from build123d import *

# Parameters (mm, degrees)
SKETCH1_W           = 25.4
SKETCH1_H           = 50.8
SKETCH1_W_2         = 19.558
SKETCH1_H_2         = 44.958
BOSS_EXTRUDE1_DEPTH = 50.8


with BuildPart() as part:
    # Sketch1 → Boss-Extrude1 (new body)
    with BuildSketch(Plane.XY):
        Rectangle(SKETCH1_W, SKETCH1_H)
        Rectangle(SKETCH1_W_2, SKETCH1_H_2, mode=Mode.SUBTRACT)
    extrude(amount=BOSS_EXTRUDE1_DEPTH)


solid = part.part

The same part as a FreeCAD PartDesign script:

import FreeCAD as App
import Part
import Sketcher
from FreeCAD import Vector
Q = App.Units.Quantity


def add_polygon(sketch, points):
    """Adds a closed chain of lines whose ends are joined by coincident constraints."""
    first, n = sketch.GeometryCount, len(points)
    for a, b in zip(points, points[1:] + points[:1]):
        sketch.addGeometry(Part.LineSegment(App.Vector(*a, 0), App.Vector(*b, 0)), False)
    for i in range(n):
        sketch.addConstraint(Sketcher.Constraint("Coincident", first + i, 2, first + (i + 1) % n, 1))

doc = App.newDocument("Part")
body = doc.addObject("PartDesign::Body", "Body")

# Sketch on XY plane
sketch1 = doc.addObject("Sketcher::SketchObject", "Sketch")
body.addObject(sketch1)
sketch1.AttachmentSupport = (doc.XY_Plane, [""])
sketch1.MapMode = "FlatFace"
add_polygon(sketch1, [(-13, 25), (-13, -25), (13, -25), (13, 25)])  # lines 0-3
add_polygon(sketch1, [(10, -22), (-10, -22), (-10, 22), (10, 22)])  # lines 4-7
sketch1.addConstraint([
    Sketcher.Constraint("Vertical", 0),
    Sketcher.Constraint("Horizontal", 1),
    Sketcher.Constraint("Vertical", 2),
    Sketcher.Constraint("Horizontal", 3),
    Sketcher.Constraint("Horizontal", 4),
    Sketcher.Constraint("Vertical", 5),
    Sketcher.Constraint("Horizontal", 6),
    Sketcher.Constraint("Vertical", 7),
    Sketcher.Constraint("Symmetric", 0, 2, 2, 2, -1, 1),
    Sketcher.Constraint("Symmetric", 4, 2, 6, 2, -1, 1),
    Sketcher.Constraint("DistanceX", 1, 1, 1, 2, Q("1 in")),
    Sketcher.Constraint("DistanceY", 0, 2, 0, 1, Q("2 in")),
    Sketcher.Constraint("DistanceX", 4, 2, 4, 1, Q("0.77 in")),
    Sketcher.Constraint("DistanceY", 5, 1, 5, 2, Q("1.77 in")),
])
pad1 = doc.addObject("PartDesign::Pad", "Pad")
body.addObject(pad1)
pad1.Profile = sketch1
pad1.Length = Q("2 in")

doc.recompute()
